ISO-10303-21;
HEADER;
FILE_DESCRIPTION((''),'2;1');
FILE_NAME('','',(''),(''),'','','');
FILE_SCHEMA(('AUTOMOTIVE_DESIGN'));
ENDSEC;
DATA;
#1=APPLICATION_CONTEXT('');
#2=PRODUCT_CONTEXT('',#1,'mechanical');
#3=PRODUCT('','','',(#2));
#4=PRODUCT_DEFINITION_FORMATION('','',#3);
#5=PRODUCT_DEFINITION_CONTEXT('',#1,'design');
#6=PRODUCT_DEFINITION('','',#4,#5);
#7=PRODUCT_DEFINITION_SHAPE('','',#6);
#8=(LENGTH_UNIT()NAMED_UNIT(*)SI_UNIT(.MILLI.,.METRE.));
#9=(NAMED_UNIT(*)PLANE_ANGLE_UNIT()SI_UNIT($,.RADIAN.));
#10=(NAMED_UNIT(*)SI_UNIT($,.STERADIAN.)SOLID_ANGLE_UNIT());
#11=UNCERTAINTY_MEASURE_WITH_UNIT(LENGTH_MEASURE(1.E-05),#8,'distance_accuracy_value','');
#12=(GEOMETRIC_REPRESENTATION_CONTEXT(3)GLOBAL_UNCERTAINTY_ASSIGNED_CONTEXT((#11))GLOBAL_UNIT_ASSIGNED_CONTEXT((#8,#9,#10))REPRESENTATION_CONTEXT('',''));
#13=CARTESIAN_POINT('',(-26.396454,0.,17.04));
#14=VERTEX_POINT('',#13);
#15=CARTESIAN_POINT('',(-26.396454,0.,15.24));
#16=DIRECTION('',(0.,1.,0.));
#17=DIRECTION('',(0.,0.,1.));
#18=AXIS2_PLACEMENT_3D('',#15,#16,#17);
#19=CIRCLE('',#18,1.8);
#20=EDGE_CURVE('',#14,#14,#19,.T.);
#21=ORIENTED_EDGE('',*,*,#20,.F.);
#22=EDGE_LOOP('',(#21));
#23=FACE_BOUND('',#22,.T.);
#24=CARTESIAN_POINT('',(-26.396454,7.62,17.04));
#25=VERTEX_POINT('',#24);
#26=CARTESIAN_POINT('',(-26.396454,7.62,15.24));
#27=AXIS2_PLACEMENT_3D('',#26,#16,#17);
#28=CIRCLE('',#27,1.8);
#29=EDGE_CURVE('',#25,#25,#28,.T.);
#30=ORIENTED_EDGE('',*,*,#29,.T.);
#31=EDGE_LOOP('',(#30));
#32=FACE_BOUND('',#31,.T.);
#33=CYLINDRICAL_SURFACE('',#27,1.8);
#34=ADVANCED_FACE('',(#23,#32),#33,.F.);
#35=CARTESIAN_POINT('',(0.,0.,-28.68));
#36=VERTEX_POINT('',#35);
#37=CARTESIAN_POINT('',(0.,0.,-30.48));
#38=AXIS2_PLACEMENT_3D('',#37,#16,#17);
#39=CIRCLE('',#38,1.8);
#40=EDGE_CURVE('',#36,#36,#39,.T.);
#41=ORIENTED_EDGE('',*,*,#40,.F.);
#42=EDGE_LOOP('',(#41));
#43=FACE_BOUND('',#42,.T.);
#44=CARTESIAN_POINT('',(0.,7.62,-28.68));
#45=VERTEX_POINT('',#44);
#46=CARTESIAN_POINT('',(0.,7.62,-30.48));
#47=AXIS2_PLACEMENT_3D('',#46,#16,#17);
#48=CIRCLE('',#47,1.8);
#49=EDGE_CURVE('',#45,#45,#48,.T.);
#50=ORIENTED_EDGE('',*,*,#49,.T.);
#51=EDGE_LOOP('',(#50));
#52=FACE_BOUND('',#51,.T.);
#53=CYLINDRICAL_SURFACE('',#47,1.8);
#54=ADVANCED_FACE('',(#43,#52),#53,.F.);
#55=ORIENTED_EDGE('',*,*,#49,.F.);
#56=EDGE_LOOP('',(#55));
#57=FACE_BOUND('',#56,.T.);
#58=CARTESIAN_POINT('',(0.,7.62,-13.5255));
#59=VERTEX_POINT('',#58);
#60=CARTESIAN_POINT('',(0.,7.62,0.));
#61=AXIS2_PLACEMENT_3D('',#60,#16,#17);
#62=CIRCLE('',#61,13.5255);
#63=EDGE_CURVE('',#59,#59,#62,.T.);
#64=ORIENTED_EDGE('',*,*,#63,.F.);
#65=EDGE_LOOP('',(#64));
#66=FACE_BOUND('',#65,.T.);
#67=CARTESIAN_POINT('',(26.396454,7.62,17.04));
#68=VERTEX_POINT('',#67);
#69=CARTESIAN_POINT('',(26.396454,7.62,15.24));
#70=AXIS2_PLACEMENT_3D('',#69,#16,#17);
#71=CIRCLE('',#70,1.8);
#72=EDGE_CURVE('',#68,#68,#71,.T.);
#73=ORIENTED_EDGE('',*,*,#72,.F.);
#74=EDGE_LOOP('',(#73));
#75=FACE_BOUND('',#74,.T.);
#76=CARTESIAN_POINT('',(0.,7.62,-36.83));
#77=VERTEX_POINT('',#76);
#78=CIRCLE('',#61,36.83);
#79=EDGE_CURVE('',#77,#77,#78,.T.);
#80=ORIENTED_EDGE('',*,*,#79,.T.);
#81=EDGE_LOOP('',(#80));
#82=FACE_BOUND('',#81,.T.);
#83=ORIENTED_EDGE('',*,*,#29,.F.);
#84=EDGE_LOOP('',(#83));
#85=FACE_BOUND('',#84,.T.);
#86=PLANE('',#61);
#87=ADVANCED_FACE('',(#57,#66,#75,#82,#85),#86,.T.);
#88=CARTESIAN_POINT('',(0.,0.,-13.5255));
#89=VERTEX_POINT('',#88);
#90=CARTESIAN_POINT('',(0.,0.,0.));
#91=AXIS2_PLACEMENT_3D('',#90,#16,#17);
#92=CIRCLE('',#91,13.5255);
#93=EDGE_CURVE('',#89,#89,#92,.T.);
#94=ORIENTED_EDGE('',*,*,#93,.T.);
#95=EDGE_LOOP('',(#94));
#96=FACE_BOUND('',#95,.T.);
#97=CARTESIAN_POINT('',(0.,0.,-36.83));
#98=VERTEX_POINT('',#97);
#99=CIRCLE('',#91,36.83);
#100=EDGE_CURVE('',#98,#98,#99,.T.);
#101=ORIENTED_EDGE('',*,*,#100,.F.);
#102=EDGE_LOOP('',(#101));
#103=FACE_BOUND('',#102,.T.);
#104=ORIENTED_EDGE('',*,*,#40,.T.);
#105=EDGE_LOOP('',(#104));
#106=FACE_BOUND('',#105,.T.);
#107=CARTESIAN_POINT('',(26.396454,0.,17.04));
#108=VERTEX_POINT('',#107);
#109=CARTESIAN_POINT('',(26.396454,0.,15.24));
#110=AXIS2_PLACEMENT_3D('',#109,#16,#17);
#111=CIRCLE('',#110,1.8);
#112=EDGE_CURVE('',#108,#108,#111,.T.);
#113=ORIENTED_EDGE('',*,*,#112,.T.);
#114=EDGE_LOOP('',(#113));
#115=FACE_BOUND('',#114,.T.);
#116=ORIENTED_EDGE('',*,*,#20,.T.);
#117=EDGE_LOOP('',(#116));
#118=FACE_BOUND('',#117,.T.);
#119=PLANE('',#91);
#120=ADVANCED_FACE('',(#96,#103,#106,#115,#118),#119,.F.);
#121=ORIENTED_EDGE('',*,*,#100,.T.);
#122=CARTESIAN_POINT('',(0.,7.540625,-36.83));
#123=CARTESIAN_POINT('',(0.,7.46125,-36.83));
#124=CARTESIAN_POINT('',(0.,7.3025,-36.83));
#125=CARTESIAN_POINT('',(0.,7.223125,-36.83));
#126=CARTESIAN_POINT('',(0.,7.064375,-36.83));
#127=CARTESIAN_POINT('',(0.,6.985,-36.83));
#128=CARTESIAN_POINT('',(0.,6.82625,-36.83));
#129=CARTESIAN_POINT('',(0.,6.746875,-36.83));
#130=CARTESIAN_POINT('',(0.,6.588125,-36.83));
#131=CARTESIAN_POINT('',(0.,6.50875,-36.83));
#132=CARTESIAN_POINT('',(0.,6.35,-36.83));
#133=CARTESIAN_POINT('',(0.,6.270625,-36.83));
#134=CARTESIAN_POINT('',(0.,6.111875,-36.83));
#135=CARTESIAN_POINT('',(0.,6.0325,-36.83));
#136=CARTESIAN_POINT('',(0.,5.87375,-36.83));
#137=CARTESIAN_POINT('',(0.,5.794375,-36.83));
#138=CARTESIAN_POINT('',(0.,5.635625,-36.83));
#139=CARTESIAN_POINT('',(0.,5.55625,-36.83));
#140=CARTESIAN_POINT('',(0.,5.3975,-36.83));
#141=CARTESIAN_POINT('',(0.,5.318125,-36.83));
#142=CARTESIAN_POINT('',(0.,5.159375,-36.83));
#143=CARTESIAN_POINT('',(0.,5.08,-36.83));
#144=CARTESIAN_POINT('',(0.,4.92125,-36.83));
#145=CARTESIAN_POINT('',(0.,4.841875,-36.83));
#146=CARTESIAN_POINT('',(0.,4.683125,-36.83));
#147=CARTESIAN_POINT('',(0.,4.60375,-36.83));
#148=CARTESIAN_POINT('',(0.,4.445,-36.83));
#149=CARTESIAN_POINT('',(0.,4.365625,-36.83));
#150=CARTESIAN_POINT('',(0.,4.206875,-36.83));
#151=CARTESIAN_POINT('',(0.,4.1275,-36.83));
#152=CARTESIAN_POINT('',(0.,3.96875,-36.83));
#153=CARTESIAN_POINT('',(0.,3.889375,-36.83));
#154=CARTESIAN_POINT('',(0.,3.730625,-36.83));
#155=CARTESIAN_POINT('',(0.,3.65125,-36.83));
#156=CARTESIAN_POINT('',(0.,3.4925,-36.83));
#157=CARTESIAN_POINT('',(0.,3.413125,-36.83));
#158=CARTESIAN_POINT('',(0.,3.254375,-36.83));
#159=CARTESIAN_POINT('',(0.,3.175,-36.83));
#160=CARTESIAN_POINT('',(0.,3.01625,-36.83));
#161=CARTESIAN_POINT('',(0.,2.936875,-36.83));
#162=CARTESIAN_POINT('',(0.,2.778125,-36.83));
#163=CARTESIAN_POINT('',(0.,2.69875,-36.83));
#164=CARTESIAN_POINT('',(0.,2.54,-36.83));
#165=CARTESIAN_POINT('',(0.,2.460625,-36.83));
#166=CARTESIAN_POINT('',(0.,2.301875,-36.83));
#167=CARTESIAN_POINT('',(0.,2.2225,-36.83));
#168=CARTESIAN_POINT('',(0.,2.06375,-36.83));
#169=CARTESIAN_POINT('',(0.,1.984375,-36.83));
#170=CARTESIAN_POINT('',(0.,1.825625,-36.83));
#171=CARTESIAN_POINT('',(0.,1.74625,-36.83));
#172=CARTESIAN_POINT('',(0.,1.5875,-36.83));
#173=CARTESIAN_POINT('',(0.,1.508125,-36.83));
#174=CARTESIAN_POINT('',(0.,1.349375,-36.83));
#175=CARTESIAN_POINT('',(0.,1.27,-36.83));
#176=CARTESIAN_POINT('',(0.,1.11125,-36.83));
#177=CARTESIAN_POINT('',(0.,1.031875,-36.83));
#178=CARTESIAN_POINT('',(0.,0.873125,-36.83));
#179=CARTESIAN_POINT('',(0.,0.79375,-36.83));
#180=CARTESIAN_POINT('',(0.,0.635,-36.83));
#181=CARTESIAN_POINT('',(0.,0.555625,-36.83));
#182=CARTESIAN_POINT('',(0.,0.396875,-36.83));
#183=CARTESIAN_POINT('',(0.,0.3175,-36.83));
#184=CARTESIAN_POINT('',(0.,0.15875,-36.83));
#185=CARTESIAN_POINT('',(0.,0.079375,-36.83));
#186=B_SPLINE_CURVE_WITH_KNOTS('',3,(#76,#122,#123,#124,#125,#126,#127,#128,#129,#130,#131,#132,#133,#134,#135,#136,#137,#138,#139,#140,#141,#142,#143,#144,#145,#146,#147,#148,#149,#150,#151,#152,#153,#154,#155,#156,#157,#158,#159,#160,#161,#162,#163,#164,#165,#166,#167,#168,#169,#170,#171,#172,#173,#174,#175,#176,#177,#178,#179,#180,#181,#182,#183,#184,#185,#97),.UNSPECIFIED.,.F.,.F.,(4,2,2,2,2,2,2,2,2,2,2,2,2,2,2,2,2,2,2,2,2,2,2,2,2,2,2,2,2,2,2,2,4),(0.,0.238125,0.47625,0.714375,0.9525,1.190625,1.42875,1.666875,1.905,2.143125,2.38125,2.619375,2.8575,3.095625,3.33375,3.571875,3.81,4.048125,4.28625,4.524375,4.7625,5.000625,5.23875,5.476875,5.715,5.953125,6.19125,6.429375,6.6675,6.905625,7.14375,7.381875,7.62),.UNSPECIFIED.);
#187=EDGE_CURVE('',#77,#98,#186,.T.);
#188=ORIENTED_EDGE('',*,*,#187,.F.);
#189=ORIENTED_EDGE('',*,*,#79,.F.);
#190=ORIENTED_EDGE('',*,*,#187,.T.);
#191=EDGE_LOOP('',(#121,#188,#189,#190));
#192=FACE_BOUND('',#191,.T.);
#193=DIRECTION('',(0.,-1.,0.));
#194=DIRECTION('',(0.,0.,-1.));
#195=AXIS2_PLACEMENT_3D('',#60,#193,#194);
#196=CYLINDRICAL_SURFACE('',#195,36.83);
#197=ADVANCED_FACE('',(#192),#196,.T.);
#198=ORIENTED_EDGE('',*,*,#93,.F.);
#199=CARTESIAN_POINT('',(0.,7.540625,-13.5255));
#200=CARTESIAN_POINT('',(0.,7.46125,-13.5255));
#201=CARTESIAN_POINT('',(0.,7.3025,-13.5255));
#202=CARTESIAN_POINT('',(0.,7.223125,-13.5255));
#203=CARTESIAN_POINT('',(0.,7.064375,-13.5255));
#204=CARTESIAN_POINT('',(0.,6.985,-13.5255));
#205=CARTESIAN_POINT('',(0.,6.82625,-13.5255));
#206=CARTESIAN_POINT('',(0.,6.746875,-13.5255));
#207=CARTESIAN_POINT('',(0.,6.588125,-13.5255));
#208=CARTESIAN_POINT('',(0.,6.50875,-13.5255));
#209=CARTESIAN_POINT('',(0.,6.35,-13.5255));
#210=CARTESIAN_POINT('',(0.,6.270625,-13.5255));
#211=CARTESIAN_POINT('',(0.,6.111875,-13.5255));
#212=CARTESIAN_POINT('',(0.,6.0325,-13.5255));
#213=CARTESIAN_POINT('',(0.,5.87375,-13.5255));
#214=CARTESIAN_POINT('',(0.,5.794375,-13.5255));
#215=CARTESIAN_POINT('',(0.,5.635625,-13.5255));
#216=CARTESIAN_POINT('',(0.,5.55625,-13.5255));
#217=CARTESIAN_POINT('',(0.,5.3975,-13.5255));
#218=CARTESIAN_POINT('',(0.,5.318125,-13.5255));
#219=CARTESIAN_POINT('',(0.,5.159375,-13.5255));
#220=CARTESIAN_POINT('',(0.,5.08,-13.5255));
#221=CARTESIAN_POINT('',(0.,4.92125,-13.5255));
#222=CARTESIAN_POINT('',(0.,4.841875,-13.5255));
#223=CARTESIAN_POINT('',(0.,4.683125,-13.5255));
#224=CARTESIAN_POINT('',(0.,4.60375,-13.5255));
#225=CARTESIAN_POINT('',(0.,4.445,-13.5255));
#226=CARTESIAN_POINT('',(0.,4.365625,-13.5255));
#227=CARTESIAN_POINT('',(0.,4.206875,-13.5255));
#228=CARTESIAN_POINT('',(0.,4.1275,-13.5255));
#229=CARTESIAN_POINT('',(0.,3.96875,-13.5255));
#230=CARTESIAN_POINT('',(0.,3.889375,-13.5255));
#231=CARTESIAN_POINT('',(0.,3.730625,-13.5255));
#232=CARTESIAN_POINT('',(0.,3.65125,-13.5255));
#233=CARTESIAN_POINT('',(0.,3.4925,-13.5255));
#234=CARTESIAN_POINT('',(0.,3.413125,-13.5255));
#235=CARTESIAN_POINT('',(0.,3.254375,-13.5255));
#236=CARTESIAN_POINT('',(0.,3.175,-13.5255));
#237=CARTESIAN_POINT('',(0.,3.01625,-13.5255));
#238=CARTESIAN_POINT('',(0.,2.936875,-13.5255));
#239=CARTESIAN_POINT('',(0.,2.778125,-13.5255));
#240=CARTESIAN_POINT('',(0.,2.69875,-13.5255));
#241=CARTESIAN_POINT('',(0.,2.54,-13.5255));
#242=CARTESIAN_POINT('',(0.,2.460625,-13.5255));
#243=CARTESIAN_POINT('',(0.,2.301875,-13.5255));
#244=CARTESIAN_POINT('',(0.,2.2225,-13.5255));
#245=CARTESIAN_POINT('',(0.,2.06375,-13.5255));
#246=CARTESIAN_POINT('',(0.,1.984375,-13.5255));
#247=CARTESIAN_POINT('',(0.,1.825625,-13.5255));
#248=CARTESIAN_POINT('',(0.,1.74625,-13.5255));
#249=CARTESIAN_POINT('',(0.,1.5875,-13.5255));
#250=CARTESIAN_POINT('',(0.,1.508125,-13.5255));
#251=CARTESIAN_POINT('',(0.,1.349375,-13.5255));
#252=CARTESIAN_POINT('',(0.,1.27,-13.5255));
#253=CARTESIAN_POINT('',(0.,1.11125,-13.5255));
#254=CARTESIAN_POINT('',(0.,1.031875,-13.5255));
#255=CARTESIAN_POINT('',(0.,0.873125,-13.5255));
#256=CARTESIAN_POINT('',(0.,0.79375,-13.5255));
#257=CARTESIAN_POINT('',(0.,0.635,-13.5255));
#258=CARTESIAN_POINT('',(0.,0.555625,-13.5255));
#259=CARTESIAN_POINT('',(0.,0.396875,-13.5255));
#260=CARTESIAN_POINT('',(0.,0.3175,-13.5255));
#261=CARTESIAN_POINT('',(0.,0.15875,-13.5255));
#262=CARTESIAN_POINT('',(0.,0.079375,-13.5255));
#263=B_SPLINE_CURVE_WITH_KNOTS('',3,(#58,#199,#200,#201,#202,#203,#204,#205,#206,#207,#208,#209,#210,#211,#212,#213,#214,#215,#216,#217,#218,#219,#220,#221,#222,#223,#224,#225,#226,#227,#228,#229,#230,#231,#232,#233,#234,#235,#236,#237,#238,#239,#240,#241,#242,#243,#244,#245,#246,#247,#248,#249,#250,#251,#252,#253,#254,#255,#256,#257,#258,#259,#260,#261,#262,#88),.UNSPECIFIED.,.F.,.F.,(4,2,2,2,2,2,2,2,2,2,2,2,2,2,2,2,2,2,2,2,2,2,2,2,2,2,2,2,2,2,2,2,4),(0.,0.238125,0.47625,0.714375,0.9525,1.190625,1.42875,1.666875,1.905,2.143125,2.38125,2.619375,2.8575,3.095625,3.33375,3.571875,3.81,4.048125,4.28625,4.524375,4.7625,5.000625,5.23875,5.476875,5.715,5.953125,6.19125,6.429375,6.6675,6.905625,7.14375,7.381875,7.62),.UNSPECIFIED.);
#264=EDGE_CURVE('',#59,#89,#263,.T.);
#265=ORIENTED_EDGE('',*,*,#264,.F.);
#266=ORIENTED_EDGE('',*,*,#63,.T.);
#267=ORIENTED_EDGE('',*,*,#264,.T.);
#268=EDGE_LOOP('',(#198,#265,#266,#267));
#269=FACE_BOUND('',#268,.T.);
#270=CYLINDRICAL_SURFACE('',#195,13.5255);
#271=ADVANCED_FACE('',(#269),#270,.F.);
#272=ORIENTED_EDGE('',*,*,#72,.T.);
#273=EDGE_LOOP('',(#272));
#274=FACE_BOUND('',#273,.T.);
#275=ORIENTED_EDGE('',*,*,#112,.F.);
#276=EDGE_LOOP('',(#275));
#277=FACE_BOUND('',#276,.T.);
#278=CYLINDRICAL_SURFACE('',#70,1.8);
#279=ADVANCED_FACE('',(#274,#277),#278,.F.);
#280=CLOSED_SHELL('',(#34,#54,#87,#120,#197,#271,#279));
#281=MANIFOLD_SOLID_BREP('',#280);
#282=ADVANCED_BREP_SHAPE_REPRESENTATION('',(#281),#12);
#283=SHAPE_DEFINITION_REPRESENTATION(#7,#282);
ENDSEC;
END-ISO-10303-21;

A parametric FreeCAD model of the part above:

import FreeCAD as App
import Part
import Sketcher
from FreeCAD import Vector
Q = App.Units.Quantity

doc = App.newDocument("Part")
params = doc.addObject("Spreadsheet::Sheet", "Params")
for row, (alias, value) in enumerate([
    ("sketch1_diameter", "2.9 in"),
    ("sketch1_diameter2", "1.065 in"),
    ("pad1_length", "0.3 in"),
    ("hole_diameter", "3.6 mm"),
], start=1):
    params.set(f"A{row}", alias)
    params.set(f"B{row}", "=" + value)
    params.setAlias(f"B{row}", alias)

body = doc.addObject("PartDesign::Body", "Body")

# Sketch on XZ plane
sketch1 = body.newObject("Sketcher::SketchObject", "Sketch")
sketch1.AttachmentSupport = (doc.getObject("XZ_Plane"), [""])
sketch1.MapMode = "FlatFace"
sketch1.addGeometry([
    Part.Circle(Vector(0, 0, 0), Vector(0, 0, 1), 37),
    Part.Circle(Vector(0, 0, 0), Vector(0, 0, 1), 14),
], False)
sketch1.addConstraint([
    Sketcher.Constraint("Coincident", 0, 3, -1, 1),
    Sketcher.Constraint("Coincident", 1, 3, -1, 1),
    Sketcher.Constraint("Diameter", 0, Q("2.9 in")),
    Sketcher.Constraint("Diameter", 1, Q("1.065 in")),
])
sketch1.setExpression("Constraints[2]", "Params.sketch1_diameter")
sketch1.setExpression("Constraints[3]", "Params.sketch1_diameter2")
pad1 = body.newObject("PartDesign::Pad", "Pad")
pad1.Profile = sketch1
pad1.setExpression("Length", "Params.pad1_length")
pad1.Reversed = True

# Sketch on XZ plane
sketch2 = body.newObject("Sketcher::SketchObject", "Sketch001")
sketch2.AttachmentSupport = (doc.getObject("XZ_Plane"), [""])
sketch2.MapMode = "FlatFace"
sketch2.AttachmentOffset = App.Placement(Vector(0, 0, -0.3 * 25.4), App.Rotation())
sketch2.addGeometry([
    Part.Circle(Vector(0, -30.5, 0), Vector(0, 0, 1), 1.8),
    Part.Circle(Vector(26.4, 15.2, 0), Vector(0, 0, 1), 1.8),
    Part.Circle(Vector(-26.4, 15.2, 0), Vector(0, 0, 1), 1.8),
], False)
sketch2.addConstraint([
    Sketcher.Constraint("Equal", 0, 1),
    Sketcher.Constraint("Equal", 1, 2),
    Sketcher.Constraint("Symmetric", 1, 3, 2, 3, -2),
    Sketcher.Constraint("PointOnObject", 0, 3, -2),
    Sketcher.Constraint("DistanceY", 0, 3, -1, 1, Q("1.2 in")),
    Sketcher.Constraint("DistanceY", -1, 1, 1, 3, Q("0.6 in")),
    Sketcher.Constraint("Diameter", 0, Q("3.6 mm")),
    Sketcher.Constraint("DistanceX", 2, 3, 1, 3, Q("52.792909 mm")),
])
doc.recompute()
hole = body.newObject("PartDesign::Hole", "Hole")
hole.Profile = sketch2
hole.ThreadType = "None"
hole.setExpression("Diameter", "Params.hole_diameter")
hole.DepthType = "ThroughAll"
hole.Reversed = True

doc.recompute()
